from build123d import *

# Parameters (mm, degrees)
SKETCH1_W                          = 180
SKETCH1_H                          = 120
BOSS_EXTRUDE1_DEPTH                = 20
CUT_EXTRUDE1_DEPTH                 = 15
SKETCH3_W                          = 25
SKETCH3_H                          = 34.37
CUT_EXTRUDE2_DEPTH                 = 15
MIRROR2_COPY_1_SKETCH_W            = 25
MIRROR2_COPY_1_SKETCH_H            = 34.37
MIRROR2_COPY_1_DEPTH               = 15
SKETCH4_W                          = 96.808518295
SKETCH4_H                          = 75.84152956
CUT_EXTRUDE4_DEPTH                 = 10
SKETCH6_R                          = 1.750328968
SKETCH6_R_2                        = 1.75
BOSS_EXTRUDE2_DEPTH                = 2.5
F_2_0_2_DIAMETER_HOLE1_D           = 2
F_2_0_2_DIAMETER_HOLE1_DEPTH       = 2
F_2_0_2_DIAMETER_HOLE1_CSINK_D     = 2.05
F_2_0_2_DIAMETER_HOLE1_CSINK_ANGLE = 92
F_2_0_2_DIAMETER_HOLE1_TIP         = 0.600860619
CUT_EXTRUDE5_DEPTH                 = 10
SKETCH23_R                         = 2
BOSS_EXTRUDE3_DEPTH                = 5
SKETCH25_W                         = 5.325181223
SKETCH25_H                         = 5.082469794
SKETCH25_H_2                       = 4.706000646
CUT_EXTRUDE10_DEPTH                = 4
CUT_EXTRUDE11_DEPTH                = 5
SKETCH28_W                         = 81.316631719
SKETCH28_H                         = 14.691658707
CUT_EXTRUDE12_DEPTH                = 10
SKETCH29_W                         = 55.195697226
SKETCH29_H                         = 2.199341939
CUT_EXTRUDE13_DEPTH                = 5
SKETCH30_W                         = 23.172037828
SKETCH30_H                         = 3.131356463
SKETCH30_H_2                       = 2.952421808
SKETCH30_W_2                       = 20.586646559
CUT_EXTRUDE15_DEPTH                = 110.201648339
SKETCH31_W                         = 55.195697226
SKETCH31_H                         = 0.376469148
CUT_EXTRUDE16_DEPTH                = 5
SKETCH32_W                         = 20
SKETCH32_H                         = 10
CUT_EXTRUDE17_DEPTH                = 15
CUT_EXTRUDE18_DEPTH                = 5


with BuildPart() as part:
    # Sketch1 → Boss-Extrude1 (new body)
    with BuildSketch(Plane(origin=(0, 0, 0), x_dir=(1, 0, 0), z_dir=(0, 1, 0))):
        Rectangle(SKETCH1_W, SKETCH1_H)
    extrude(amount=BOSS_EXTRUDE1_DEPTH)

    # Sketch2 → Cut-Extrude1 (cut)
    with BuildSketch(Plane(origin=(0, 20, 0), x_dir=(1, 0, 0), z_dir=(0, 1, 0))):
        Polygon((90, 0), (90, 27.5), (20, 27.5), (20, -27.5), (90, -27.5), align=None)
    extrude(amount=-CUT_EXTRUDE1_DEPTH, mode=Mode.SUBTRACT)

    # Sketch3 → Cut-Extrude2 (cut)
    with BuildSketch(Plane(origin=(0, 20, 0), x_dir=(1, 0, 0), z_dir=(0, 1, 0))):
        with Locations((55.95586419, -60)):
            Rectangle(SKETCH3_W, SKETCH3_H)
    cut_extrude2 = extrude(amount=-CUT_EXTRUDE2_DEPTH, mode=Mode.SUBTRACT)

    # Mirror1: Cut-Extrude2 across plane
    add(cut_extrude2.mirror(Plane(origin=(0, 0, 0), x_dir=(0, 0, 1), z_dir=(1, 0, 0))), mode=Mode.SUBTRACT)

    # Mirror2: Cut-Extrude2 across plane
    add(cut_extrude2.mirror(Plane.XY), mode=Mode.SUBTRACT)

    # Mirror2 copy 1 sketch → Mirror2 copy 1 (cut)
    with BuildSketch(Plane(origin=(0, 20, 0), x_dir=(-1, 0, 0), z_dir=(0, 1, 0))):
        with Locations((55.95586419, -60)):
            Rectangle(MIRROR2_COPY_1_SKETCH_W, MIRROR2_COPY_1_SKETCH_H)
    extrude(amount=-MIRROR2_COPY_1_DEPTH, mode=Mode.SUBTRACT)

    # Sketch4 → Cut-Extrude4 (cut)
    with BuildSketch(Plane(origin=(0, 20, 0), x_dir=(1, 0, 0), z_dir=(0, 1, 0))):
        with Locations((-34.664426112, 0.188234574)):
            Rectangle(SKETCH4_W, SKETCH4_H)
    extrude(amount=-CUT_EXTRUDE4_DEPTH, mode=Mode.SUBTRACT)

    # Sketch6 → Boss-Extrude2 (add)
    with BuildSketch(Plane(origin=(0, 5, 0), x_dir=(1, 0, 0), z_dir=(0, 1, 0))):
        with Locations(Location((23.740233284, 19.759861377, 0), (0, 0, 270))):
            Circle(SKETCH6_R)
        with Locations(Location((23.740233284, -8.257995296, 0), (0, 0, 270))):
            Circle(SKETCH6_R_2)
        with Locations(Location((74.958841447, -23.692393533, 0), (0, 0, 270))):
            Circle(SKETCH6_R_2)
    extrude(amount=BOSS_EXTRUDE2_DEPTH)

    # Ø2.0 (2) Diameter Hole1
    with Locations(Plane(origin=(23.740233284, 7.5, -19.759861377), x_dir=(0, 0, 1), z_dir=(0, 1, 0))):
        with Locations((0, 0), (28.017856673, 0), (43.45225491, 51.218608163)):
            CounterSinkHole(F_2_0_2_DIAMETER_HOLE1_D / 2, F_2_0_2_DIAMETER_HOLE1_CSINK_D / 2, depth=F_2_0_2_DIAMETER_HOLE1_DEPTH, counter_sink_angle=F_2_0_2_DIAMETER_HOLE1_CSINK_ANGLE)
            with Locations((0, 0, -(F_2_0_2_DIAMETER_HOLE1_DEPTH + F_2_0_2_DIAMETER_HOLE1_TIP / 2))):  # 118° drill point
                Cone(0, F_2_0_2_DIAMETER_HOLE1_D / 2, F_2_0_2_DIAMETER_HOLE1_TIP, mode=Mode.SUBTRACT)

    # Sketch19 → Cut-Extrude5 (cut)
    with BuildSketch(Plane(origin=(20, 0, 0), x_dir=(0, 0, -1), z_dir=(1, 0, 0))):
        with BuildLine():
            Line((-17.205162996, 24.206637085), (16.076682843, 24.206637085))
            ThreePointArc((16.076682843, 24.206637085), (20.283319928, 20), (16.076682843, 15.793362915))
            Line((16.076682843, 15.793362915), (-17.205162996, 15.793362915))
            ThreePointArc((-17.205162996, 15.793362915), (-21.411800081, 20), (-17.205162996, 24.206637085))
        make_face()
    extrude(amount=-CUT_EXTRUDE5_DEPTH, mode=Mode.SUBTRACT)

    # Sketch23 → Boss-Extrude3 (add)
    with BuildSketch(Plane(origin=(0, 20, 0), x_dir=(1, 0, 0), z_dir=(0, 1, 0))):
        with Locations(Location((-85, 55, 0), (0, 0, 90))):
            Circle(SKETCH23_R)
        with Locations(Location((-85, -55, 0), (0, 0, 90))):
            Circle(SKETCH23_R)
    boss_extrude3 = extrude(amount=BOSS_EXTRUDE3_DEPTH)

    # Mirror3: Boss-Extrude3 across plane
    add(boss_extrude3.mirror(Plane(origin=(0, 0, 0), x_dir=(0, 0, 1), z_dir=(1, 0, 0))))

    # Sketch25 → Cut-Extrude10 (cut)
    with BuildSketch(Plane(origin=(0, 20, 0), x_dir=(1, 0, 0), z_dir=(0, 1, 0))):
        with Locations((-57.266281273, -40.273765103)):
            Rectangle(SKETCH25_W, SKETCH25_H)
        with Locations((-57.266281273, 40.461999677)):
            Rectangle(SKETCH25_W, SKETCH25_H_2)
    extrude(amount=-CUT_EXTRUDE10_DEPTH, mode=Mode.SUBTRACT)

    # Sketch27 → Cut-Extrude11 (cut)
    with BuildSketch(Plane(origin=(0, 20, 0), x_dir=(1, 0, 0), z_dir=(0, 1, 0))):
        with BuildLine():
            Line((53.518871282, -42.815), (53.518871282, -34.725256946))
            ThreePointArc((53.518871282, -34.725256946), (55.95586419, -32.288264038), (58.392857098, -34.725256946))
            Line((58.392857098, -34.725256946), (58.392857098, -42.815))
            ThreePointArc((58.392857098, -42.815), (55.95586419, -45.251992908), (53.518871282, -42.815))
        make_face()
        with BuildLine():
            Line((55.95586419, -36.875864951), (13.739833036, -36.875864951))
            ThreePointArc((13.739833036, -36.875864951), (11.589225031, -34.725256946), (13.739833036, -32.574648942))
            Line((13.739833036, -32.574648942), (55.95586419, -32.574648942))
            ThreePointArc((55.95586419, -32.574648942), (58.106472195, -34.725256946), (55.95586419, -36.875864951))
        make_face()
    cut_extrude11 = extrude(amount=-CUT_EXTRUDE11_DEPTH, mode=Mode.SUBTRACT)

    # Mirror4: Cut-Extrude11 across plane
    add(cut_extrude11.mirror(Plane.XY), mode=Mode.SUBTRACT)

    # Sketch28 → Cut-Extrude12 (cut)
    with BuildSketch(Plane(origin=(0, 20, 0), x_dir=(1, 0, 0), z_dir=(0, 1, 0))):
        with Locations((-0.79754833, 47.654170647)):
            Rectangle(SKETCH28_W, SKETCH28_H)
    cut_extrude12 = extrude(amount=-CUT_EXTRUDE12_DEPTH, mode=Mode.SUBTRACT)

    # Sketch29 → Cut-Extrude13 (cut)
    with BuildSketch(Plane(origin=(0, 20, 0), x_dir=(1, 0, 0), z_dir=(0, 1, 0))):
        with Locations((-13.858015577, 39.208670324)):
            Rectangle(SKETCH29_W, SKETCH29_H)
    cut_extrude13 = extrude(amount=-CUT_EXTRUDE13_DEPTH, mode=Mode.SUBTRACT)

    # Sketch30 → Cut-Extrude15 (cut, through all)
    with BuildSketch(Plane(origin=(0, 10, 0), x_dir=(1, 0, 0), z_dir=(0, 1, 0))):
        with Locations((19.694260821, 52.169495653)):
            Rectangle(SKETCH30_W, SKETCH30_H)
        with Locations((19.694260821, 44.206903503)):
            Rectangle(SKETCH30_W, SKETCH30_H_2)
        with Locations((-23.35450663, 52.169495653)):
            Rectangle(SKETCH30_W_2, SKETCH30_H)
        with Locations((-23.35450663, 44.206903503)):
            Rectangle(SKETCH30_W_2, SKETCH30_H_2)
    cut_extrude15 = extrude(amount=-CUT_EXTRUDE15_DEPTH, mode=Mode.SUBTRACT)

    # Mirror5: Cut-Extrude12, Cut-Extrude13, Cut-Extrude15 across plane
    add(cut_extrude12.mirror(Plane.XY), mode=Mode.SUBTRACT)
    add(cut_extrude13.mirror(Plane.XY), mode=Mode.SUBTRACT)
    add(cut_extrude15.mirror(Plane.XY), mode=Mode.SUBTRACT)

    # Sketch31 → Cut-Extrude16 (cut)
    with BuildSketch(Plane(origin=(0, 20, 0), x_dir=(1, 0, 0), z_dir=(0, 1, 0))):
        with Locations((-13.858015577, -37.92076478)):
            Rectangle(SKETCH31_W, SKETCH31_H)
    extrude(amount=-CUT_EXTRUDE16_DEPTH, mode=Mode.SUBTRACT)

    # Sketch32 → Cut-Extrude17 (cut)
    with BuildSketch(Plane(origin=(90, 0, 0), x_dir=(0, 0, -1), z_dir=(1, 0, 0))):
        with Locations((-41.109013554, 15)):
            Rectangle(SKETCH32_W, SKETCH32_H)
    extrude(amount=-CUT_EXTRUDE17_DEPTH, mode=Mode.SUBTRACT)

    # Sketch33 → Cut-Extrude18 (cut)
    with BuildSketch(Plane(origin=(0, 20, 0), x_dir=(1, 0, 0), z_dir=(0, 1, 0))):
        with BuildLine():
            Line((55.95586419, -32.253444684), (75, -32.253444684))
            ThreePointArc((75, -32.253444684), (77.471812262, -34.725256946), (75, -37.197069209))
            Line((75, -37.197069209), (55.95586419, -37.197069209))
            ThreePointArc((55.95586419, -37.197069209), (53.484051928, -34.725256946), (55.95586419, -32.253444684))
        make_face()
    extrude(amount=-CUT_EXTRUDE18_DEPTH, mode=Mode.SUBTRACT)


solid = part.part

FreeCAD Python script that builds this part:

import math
import FreeCAD as App
import Part
import Sketcher

doc = App.newDocument("Part")
body = doc.addObject("PartDesign::Body", "Body")

sketch1 = body.newObject("Sketcher::SketchObject", "Sketch")
sketch1.AttachmentSupport = (doc.getObject("XZ_Plane"), [""])
sketch1.MapMode = "FlatFace"
sketch1.addGeometry([
    Part.LineSegment(App.Vector(-90, -60, 0), App.Vector(-90, 60, 0)),
    Part.LineSegment(App.Vector(-90, 60, 0), App.Vector(90, 60, 0)),
    Part.LineSegment(App.Vector(90, 60, 0), App.Vector(90, -60, 0)),
    Part.LineSegment(App.Vector(90, -60, 0), App.Vector(-90, -60, 0)),
], False)
sketch1.addConstraint([
    Sketcher.Constraint("Coincident", 0, 2, 1, 1),
    Sketcher.Constraint("Coincident", 1, 2, 2, 1),
    Sketcher.Constraint("Coincident", 2, 2, 3, 1),
    Sketcher.Constraint("Coincident", 3, 2, 0, 1),
    Sketcher.Constraint("Vertical", 0),
    Sketcher.Constraint("Horizontal", 1),
    Sketcher.Constraint("Vertical", 2),
    Sketcher.Constraint("Horizontal", 3),
    Sketcher.Constraint("Symmetric", 0, 2, 2, 2, -1, 1),
    Sketcher.Constraint("DistanceX", 1, 1, 1, 2, 180.0),
    Sketcher.Constraint("DistanceY", 0, 1, 0, 2, 120.0),
])
pad1 = body.newObject("PartDesign::Pad", "Pad")
pad1.Profile = sketch1
pad1.Length = 20
pad1.Reversed = True

sketch2 = body.newObject("Sketcher::SketchObject", "Sketch001")
sketch2.AttachmentSupport = (doc.getObject("XZ_Plane"), [""])
sketch2.MapMode = "FlatFace"
sketch2.AttachmentOffset = App.Placement(App.Vector(0, 0, -20), App.Rotation())
sketch2.addGeometry([
    Part.LineSegment(App.Vector(90, -27.5, 0), App.Vector(20, -27.5, 0)),
    Part.LineSegment(App.Vector(20, -27.5, 0), App.Vector(20, 27.5, 0)),
    Part.LineSegment(App.Vector(20, 27.5, 0), App.Vector(90, 27.5, 0)),
    Part.LineSegment(App.Vector(90, 27.5, 0), App.Vector(90, -27.5, 0)),
], False)
sketch2.addConstraint([
    Sketcher.Constraint("Coincident", 0, 2, 1, 1),
    Sketcher.Constraint("Coincident", 1, 2, 2, 1),
    Sketcher.Constraint("Coincident", 2, 2, 3, 1),
    Sketcher.Constraint("Coincident", 3, 2, 0, 1),
    Sketcher.Constraint("Horizontal", 0),
    Sketcher.Constraint("Vertical", 1),
    Sketcher.Constraint("Horizontal", 2),
    Sketcher.Constraint("Vertical", 3),
    Sketcher.Constraint("DistanceX", 0, 2, 0, 1, 70.0),
    Sketcher.Constraint("DistanceY", 1, 1, 1, 2, 55.0),
    Sketcher.Constraint("DistanceX", -1, 1, 0, 2, 20.0),
    Sketcher.Constraint("DistanceY", 0, 2, -1, 1, 27.5),
])
pocket1 = body.newObject("PartDesign::Pocket", "Pocket")
pocket1.Profile = sketch2
pocket1.Length = 15
pocket1.Reversed = True

sketch3 = body.newObject("Sketcher::SketchObject", "Sketch002")
sketch3.AttachmentSupport = (doc.getObject("XZ_Plane"), [""])
sketch3.MapMode = "FlatFace"
sketch3.AttachmentOffset = App.Placement(App.Vector(0, 0, -20), App.Rotation())
sketch3.addGeometry([
    Part.LineSegment(App.Vector(43.455864, 42.815, 0), App.Vector(43.455864, 77.185, 0)),
    Part.LineSegment(App.Vector(43.455864, 77.185, 0), App.Vector(68.455864, 77.185, 0)),
    Part.LineSegment(App.Vector(68.455864, 77.185, 0), App.Vector(68.455864, 42.815, 0)),
    Part.LineSegment(App.Vector(68.455864, 42.815, 0), App.Vector(43.455864, 42.815, 0)),
], False)
sketch3.addConstraint([
    Sketcher.Constraint("Coincident", 0, 2, 1, 1),
    Sketcher.Constraint("Coincident", 1, 2, 2, 1),
    Sketcher.Constraint("Coincident", 2, 2, 3, 1),
    Sketcher.Constraint("Coincident", 3, 2, 0, 1),
    Sketcher.Constraint("Vertical", 0),
    Sketcher.Constraint("Horizontal", 1),
    Sketcher.Constraint("Vertical", 2),
    Sketcher.Constraint("Horizontal", 3),
    Sketcher.Constraint("DistanceX", 1, 1, 1, 2, 25.0),
    Sketcher.Constraint("DistanceY", 0, 1, 0, 2, 34.37),
    Sketcher.Constraint("DistanceY", -1, 1, 0, 2, 77.185),
    Sketcher.Constraint("DistanceX", -1, 1, 0, 2, 43.455864),
])
pocket2 = body.newObject("PartDesign::Pocket", "Pocket001")
pocket2.Profile = sketch3
pocket2.Length = 15
pocket2.Reversed = True
doc.recompute()

mirrored = body.newObject("PartDesign::Mirrored", "Mirrored")
mirrored.Originals = [pocket2]
mirrored.MirrorPlane = (doc.getObject("YZ_Plane"), [""])
body.Tip = mirrored
doc.recompute()

mirrored2 = body.newObject("PartDesign::Mirrored", "Mirrored001")
mirrored2.Originals = [pocket2]
mirrored2.MirrorPlane = (doc.getObject("XY_Plane"), [""])
body.Tip = mirrored2

sketch4 = body.newObject("Sketcher::SketchObject", "Sketch003")
sketch4.AttachmentSupport = (doc.getObject("XZ_Plane"), [""])
sketch4.MapMode = "FlatFace"
sketch4.AttachmentOffset = App.Placement(App.Vector(0, 0, -20), App.Rotation())
sketch4.addGeometry([
    Part.LineSegment(App.Vector(-43.455864, -42.815, 0), App.Vector(-43.455864, -77.185, 0)),
    Part.LineSegment(App.Vector(-43.455864, -77.185, 0), App.Vector(-68.455864, -77.185, 0)),
    Part.LineSegment(App.Vector(-68.455864, -77.185, 0), App.Vector(-68.455864, -42.815, 0)),
    Part.LineSegment(App.Vector(-68.455864, -42.815, 0), App.Vector(-43.455864, -42.815, 0)),
], False)
sketch4.addConstraint([
    Sketcher.Constraint("Coincident", 0, 2, 1, 1),
    Sketcher.Constraint("Coincident", 1, 2, 2, 1),
    Sketcher.Constraint("Coincident", 2, 2, 3, 1),
    Sketcher.Constraint("Coincident", 3, 2, 0, 1),
    Sketcher.Constraint("Vertical", 0),
    Sketcher.Constraint("Horizontal", 1),
    Sketcher.Constraint("Vertical", 2),
    Sketcher.Constraint("Horizontal", 3),
    Sketcher.Constraint("DistanceX", 1, 2, 1, 1, 25.0),
    Sketcher.Constraint("DistanceY", 0, 2, 0, 1, 34.37),
    Sketcher.Constraint("DistanceY", 0, 2, -1, 1, 77.185),
    Sketcher.Constraint("DistanceX", 0, 2, -1, 1, 43.455864),
])
pocket3 = body.newObject("PartDesign::Pocket", "Pocket002")
pocket3.Profile = sketch4
pocket3.Length = 15
pocket3.Reversed = True

sketch5 = body.newObject("Sketcher::SketchObject", "Sketch004")
sketch5.AttachmentSupport = (doc.getObject("XZ_Plane"), [""])
sketch5.MapMode = "FlatFace"
sketch5.AttachmentOffset = App.Placement(App.Vector(0, 0, -20), App.Rotation())
sketch5.addGeometry([
    Part.LineSegment(App.Vector(-83.068685, -38.108999, 0), App.Vector(-83.068685, 37.73253, 0)),
    Part.LineSegment(App.Vector(-83.068685, 37.73253, 0), App.Vector(13.739833, 37.73253, 0)),
    Part.LineSegment(App.Vector(13.739833, 37.73253, 0), App.Vector(13.739833, -38.108999, 0)),
    Part.LineSegment(App.Vector(13.739833, -38.108999, 0), App.Vector(-83.068685, -38.108999, 0)),
], False)
sketch5.addConstraint([
    Sketcher.Constraint("Coincident", 0, 2, 1, 1),
    Sketcher.Constraint("Coincident", 1, 2, 2, 1),
    Sketcher.Constraint("Coincident", 2, 2, 3, 1),
    Sketcher.Constraint("Coincident", 3, 2, 0, 1),
    Sketcher.Constraint("Vertical", 0),
    Sketcher.Constraint("Horizontal", 1),
    Sketcher.Constraint("Vertical", 2),
    Sketcher.Constraint("Horizontal", 3),
    Sketcher.Constraint("DistanceY", 2, 2, -1, 1, 38.108999),
    Sketcher.Constraint("DistanceX", 1, 1, 1, 2, 96.808518),
    Sketcher.Constraint("DistanceY", 0, 1, 0, 2, 75.84153),
    Sketcher.Constraint("DistanceX", 0, 2, -1, 1, 83.068685),
])
pocket4 = body.newObject("PartDesign::Pocket", "Pocket003")
pocket4.Profile = sketch5
pocket4.Length = 10
pocket4.Reversed = True

sketch6 = body.newObject("Sketcher::SketchObject", "Sketch005")
sketch6.AttachmentSupport = (doc.getObject("XZ_Plane"), [""])
sketch6.MapMode = "FlatFace"
sketch6.AttachmentOffset = App.Placement(App.Vector(0, 0, -5), App.Rotation())
sketch6.addGeometry([
    Part.Circle(App.Vector(23.740233, -19.759861, 0), App.Vector(0, 0, 1), 1.750329),
    Part.Circle(App.Vector(23.740233, 8.257995, 0), App.Vector(0, 0, 1), 1.75),
    Part.Circle(App.Vector(74.958841, 23.692394, 0), App.Vector(0, 0, 1), 1.75),
], False)
sketch6.addConstraint([
    Sketcher.Constraint("Equal", 1, 2),
    Sketcher.Constraint("Vertical", 0, 3, 1, 3),
    Sketcher.Constraint("Diameter", 1, 3.5),
    Sketcher.Constraint("Diameter", 0, 3.500658),
    Sketcher.Constraint("DistanceY", 1, 3, 2, 3, 15.434398),
    Sketcher.Constraint("DistanceY", 0, 3, -1, 1, 19.759861),
    Sketcher.Constraint("DistanceX", -1, 1, 2, 3, 74.958841),
    Sketcher.Constraint("DistanceX", 1, 3, 2, 3, 51.218608),
    Sketcher.Constraint("DistanceY", -1, 1, 1, 3, 8.257995),
])
pad2 = body.newObject("PartDesign::Pad", "Pad001")
pad2.Profile = sketch6
pad2.Length = 2.5
pad2.Reversed = True

sketch7 = body.newObject("Sketcher::SketchObject", "Sketch006")
sketch7.AttachmentSupport = (doc.getObject("XZ_Plane"), [""])
sketch7.MapMode = "FlatFace"
sketch7.AttachmentOffset = App.Placement(App.Vector(0, 0, -7.5), App.Rotation())
sketch7.addGeometry([
    Part.Circle(App.Vector(23.740233, -19.759861, 0), App.Vector(0, 0, 1), 1),
    Part.Circle(App.Vector(23.740233, 8.257995, 0), App.Vector(0, 0, 1), 1),
    Part.Circle(App.Vector(74.958841, 23.692394, 0), App.Vector(0, 0, 1), 1),
], False)
sketch7.addConstraint([
    Sketcher.Constraint("Equal", 0, 1),
    Sketcher.Constraint("Equal", 1, 2),
    Sketcher.Constraint("Vertical", 0, 3, 1, 3),
    Sketcher.Constraint("Diameter", 0, 2.0),
    Sketcher.Constraint("DistanceY", 1, 3, 2, 3, 15.434398),
    Sketcher.Constraint("DistanceY", 0, 3, -1, 1, 19.759861),
    Sketcher.Constraint("DistanceX", -1, 1, 2, 3, 74.958841),
    Sketcher.Constraint("DistanceX", 1, 3, 2, 3, 51.218608),
    Sketcher.Constraint("DistanceY", -1, 1, 1, 3, 8.257995),
])
doc.recompute()
hole = body.newObject("PartDesign::Hole", "Hole")
hole.Profile = sketch7
hole.ThreadType = "None"
hole.Diameter = 2
hole.DepthType = "Dimension"
hole.Depth = 2
hole.DrillPoint = "Angled"
hole.DrillPointAngle = 118
hole.HoleCutType = "Countersink"
hole.HoleCutDiameter = 2.05
hole.HoleCutCountersinkAngle = 92
hole.Reversed = True

sketch8 = body.newObject("Sketcher::SketchObject", "Sketch007")
sketch8.AttachmentSupport = (doc.getObject("YZ_Plane"), [""])
sketch8.MapMode = "FlatFace"
sketch8.AttachmentOffset = App.Placement(App.Vector(0, 0, 20), App.Rotation())
sketch8.addGeometry([
    Part.LineSegment(App.Vector(24.206637, -16.076683, 0), App.Vector(24.206637, 17.205163, 0)),
    Part.ArcOfCircle(Part.Circle(App.Vector(20, 17.205163, 0), App.Vector(0, 0, 1), 4.206637), math.radians(0), math.radians(180)),
    Part.LineSegment(App.Vector(15.793363, 17.205163, 0), App.Vector(15.793363, -16.076683, 0)),
    Part.ArcOfCircle(Part.Circle(App.Vector(20, -16.076683, 0), App.Vector(0, 0, 1), 4.206637), math.radians(180), math.radians(360)),
], False)
sketch8.addConstraint([
    Sketcher.Constraint("Tangent", 0, 2, 1, 1),
    Sketcher.Constraint("Tangent", 1, 2, 2, 1),
    Sketcher.Constraint("Tangent", 2, 2, 3, 1),
    Sketcher.Constraint("Tangent", 3, 2, 0, 1),
    Sketcher.Constraint("Vertical", 0),
    Sketcher.Constraint("Vertical", 2),
    Sketcher.Constraint("DistanceX", -1, 1, 1, 3, 20.0),
    Sketcher.Constraint("Radius", 1, 4.206637),
    Sketcher.Constraint("DistanceY", 0, 1, 0, 2, 33.281846),
    Sketcher.Constraint("DistanceY", -1, 1, 1, 3, 17.205163),
])
pocket5 = body.newObject("PartDesign::Pocket", "Pocket004")
pocket5.Profile = sketch8
pocket5.Length = 10

sketch9 = body.newObject("Sketcher::SketchObject", "Sketch008")
sketch9.AttachmentSupport = (doc.getObject("XZ_Plane"), [""])
sketch9.MapMode = "FlatFace"
sketch9.AttachmentOffset = App.Placement(App.Vector(0, 0, -20), App.Rotation())
sketch9.addGeometry([
    Part.Circle(App.Vector(-85, -55, 0), App.Vector(0, 0, 1), 2),
    Part.Circle(App.Vector(-85, 55, 0), App.Vector(0, 0, 1), 2),
], False)
sketch9.addConstraint([
    Sketcher.Constraint("Equal", 0, 1),
    Sketcher.Constraint("Symmetric", 0, 3, 1, 3, -1),
    Sketcher.Constraint("Diameter", 0, 4.0),
    Sketcher.Constraint("DistanceX", 0, 3, -1, 1, 85.0),
    Sketcher.Constraint("DistanceY", 0, 3, -1, 1, 55.0),
])
pad3 = body.newObject("PartDesign::Pad", "Pad002")
pad3.Profile = sketch9
pad3.Length = 5
pad3.Reversed = True
doc.recompute()

mirrored3 = body.newObject("PartDesign::Mirrored", "Mirrored002")
mirrored3.Originals = [pad3]
mirrored3.MirrorPlane = (doc.getObject("YZ_Plane"), [""])
body.Tip = mirrored3

sketch10 = body.newObject("Sketcher::SketchObject", "Sketch009")
sketch10.AttachmentSupport = (doc.getObject("XZ_Plane"), [""])
sketch10.MapMode = "FlatFace"
sketch10.AttachmentOffset = App.Placement(App.Vector(0, 0, -20), App.Rotation())
sketch10.addGeometry([
    Part.LineSegment(App.Vector(-59.928872, 37.73253, 0), App.Vector(-59.928872, 42.815, 0)),
    Part.LineSegment(App.Vector(-59.928872, 42.815, 0), App.Vector(-54.603691, 42.815, 0)),
    Part.LineSegment(App.Vector(-54.603691, 42.815, 0), App.Vector(-54.603691, 37.73253, 0)),
    Part.LineSegment(App.Vector(-54.603691, 37.73253, 0), App.Vector(-59.928872, 37.73253, 0)),
    Part.LineSegment(App.Vector(-59.928872, -42.815, 0), App.Vector(-59.928872, -38.108999, 0)),
    Part.LineSegment(App.Vector(-59.928872, -38.108999, 0), App.Vector(-54.603691, -38.108999, 0)),
    Part.LineSegment(App.Vector(-54.603691, -38.108999, 0), App.Vector(-54.603691, -42.815, 0)),
    Part.LineSegment(App.Vector(-54.603691, -42.815, 0), App.Vector(-59.928872, -42.815, 0)),
], False)
sketch10.addConstraint([
    Sketcher.Constraint("Coincident", 0, 2, 1, 1),
    Sketcher.Constraint("Coincident", 1, 2, 2, 1),
    Sketcher.Constraint("Coincident", 2, 2, 3, 1),
    Sketcher.Constraint("Coincident", 3, 2, 0, 1),
    Sketcher.Constraint("Coincident", 4, 2, 5, 1),
    Sketcher.Constraint("Coincident", 5, 2, 6, 1),
    Sketcher.Constraint("Coincident", 6, 2, 7, 1),
    Sketcher.Constraint("Coincident", 7, 2, 4, 1),
    Sketcher.Constraint("Vertical", 0),
    Sketcher.Constraint("Horizontal", 1),
    Sketcher.Constraint("Vertical", 2),
    Sketcher.Constraint("Horizontal", 3),
    Sketcher.Constraint("Vertical", 4),
    Sketcher.Constraint("Horizontal", 5),
    Sketcher.Constraint("Vertical", 6),
    Sketcher.Constraint("Horizontal", 7),
    Sketcher.Constraint("Symmetric", 1, 2, 6, 2, -1),
    Sketcher.Constraint("Vertical", 3, 2, 4, 2),
    Sketcher.Constraint("DistanceY", 4, 1, 4, 2, 4.706001),
    Sketcher.Constraint("DistanceY", 6, 2, 1, 2, 85.63),
    Sketcher.Constraint("DistanceX", 1, 1, 1, 2, 5.325181),
    Sketcher.Constraint("DistanceY", 0, 1, 0, 2, 5.08247),
    Sketcher.Constraint("DistanceX", 0, 2, -1, 1, 59.928872),
])
pocket6 = body.newObject("PartDesign::Pocket", "Pocket005")
pocket6.Profile = sketch10
pocket6.Length = 4
pocket6.Reversed = True

sketch11 = body.newObject("Sketcher::SketchObject", "Sketch010")
sketch11.AttachmentSupport = (doc.getObject("XZ_Plane"), [""])
sketch11.MapMode = "FlatFace"
sketch11.AttachmentOffset = App.Placement(App.Vector(0, 0, -20), App.Rotation())
sketch11.addGeometry([
    Part.ArcOfCircle(Part.Circle(App.Vector(55.955864, 42.815, 0), App.Vector(0, 0, 1), 2.436993), math.radians(0), math.radians(180)),
    Part.LineSegment(App.Vector(58.392857, 42.815, 0), App.Vector(58.392857, 34.725257, 0)),
    Part.ArcOfCircle(Part.Circle(App.Vector(55.955864, 34.725257, 0), App.Vector(0, 0, 1), 2.436993), math.radians(-118.056488), math.radians(0)),
    Part.LineSegment(App.Vector(54.809644, 32.574649, 0), App.Vector(13.739833, 32.574649, 0)),
    Part.ArcOfCircle(Part.Circle(App.Vector(13.739833, 34.725257, 0), App.Vector(0, 0, 1), 2.150608), math.radians(90), math.radians(270)),
    Part.LineSegment(App.Vector(13.739833, 36.875865, 0), App.Vector(53.518871, 36.875865, 0)),
    Part.LineSegment(App.Vector(53.518871, 36.875865, 0), App.Vector(53.518871, 42.815, 0)),
], False)
sketch11.addConstraint([
    Sketcher.Constraint("Tangent", 0, 1, 1, 1),
    Sketcher.Constraint("Tangent", 1, 2, 2, 2),
    Sketcher.Constraint("Coincident", 2, 1, 3, 1),
    Sketcher.Constraint("Tangent", 3, 2, 4, 2),
    Sketcher.Constraint("Tangent", 4, 1, 5, 1),
    Sketcher.Constraint("Coincident", 5, 2, 6, 1),
    Sketcher.Constraint("Tangent", 6, 2, 0, 2),
    Sketcher.Constraint("Vertical", 1),
    Sketcher.Constraint("Horizontal", 3),
    Sketcher.Constraint("Horizontal", 5),
    Sketcher.Constraint("Vertical", 6),
    Sketcher.Constraint("Equal", 0, 2),
    Sketcher.Constraint("Horizontal", 2, 3, 4, 3),
    Sketcher.Constraint("Radius", 4, 2.150608),
    Sketcher.Constraint("DistanceY", -1, 1, 0, 3, 42.815),
    Sketcher.Constraint("Radius", 0, 2.436993),
    Sketcher.Constraint("DistanceX", 3, 2, 3, 1, 41.069811),
    Sketcher.Constraint("DistanceY", 1, 2, 1, 1, 8.089743),
    Sketcher.Constraint("DistanceX", -1, 1, 5, 2, 53.518871),
])
pocket7 = body.newObject("PartDesign::Pocket", "Pocket006")
pocket7.Profile = sketch11
pocket7.Length = 5
pocket7.Reversed = True
doc.recompute()

mirrored4 = body.newObject("PartDesign::Mirrored", "Mirrored003")
mirrored4.Originals = [pocket7]
mirrored4.MirrorPlane = (doc.getObject("XY_Plane"), [""])
body.Tip = mirrored4

sketch12 = body.newObject("Sketcher::SketchObject", "Sketch011")
sketch12.AttachmentSupport = (doc.getObject("XZ_Plane"), [""])
sketch12.MapMode = "FlatFace"
sketch12.AttachmentOffset = App.Placement(App.Vector(0, 0, -20), App.Rotation())
sketch12.addGeometry([
    Part.LineSegment(App.Vector(-41.455864, -55, 0), App.Vector(-41.455864, -40.308341, 0)),
    Part.LineSegment(App.Vector(-41.455864, -40.308341, 0), App.Vector(39.860768, -40.308341, 0)),
    Part.LineSegment(App.Vector(39.860768, -40.308341, 0), App.Vector(39.860768, -55, 0)),
    Part.LineSegment(App.Vector(39.860768, -55, 0), App.Vector(-41.455864, -55, 0)),
], False)
sketch12.addConstraint([
    Sketcher.Constraint("Coincident", 0, 2, 1, 1),
    Sketcher.Constraint("Coincident", 1, 2, 2, 1),
    Sketcher.Constraint("Coincident", 2, 2, 3, 1),
    Sketcher.Constraint("Coincident", 3, 2, 0, 1),
    Sketcher.Constraint("Vertical", 0),
    Sketcher.Constraint("Horizontal", 1),
    Sketcher.Constraint("Vertical", 2),
    Sketcher.Constraint("Horizontal", 3),
    Sketcher.Constraint("DistanceY", 2, 2, -1, 1, 55.0),
    Sketcher.Constraint("DistanceX", 1, 1, 1, 2, 81.316632),
    Sketcher.Constraint("DistanceY", 0, 1, 0, 2, 14.691659),
    Sketcher.Constraint("DistanceX", 0, 2, -1, 1, 41.455864),
])
pocket8 = body.newObject("PartDesign::Pocket", "Pocket007")
pocket8.Profile = sketch12
pocket8.Length = 10
pocket8.Reversed = True

sketch13 = body.newObject("Sketcher::SketchObject", "Sketch012")
sketch13.AttachmentSupport = (doc.getObject("XZ_Plane"), [""])
sketch13.MapMode = "FlatFace"
sketch13.AttachmentOffset = App.Placement(App.Vector(0, 0, -20), App.Rotation())
sketch13.addGeometry([
    Part.LineSegment(App.Vector(-41.455864, -40.308341, 0), App.Vector(-41.455864, -38.108999, 0)),
    Part.LineSegment(App.Vector(-41.455864, -38.108999, 0), App.Vector(13.739833, -38.108999, 0)),
    Part.LineSegment(App.Vector(13.739833, -38.108999, 0), App.Vector(13.739833, -40.308341, 0)),
    Part.LineSegment(App.Vector(13.739833, -40.308341, 0), App.Vector(-41.455864, -40.308341, 0)),
], False)
sketch13.addConstraint([
    Sketcher.Constraint("Coincident", 0, 2, 1, 1),
    Sketcher.Constraint("Coincident", 1, 2, 2, 1),
    Sketcher.Constraint("Coincident", 2, 2, 3, 1),
    Sketcher.Constraint("Coincident", 3, 2, 0, 1),
    Sketcher.Constraint("Vertical", 0),
    Sketcher.Constraint("Horizontal", 1),
    Sketcher.Constraint("Vertical", 2),
    Sketcher.Constraint("Horizontal", 3),
    Sketcher.Constraint("DistanceY", 0, 2, -1, 1, 38.108999),
    Sketcher.Constraint("DistanceY", 0, 1, 0, 2, 2.199342),
    Sketcher.Constraint("DistanceX", 1, 1, 1, 2, 55.195697),
    Sketcher.Constraint("DistanceX", 0, 2, -1, 1, 41.455864),
])
pocket9 = body.newObject("PartDesign::Pocket", "Pocket008")
pocket9.Profile = sketch13
pocket9.Length = 5
pocket9.Reversed = True

sketch14 = body.newObject("Sketcher::SketchObject", "Sketch013")
sketch14.AttachmentSupport = (doc.getObject("XZ_Plane"), [""])
sketch14.MapMode = "FlatFace"
sketch14.AttachmentOffset = App.Placement(App.Vector(0, 0, -10), App.Rotation())
sketch14.addGeometry([
    Part.LineSegment(App.Vector(8.108242, -53.735174, 0), App.Vector(8.108242, -50.603817, 0)),
    Part.LineSegment(App.Vector(8.108242, -50.603817, 0), App.Vector(31.28028, -50.603817, 0)),
    Part.LineSegment(App.Vector(31.28028, -50.603817, 0), App.Vector(31.28028, -53.735174, 0)),
    Part.LineSegment(App.Vector(31.28028, -53.735174, 0), App.Vector(8.108242, -53.735174, 0)),
    Part.LineSegment(App.Vector(8.108242, -45.683114, 0), App.Vector(8.108242, -42.730693, 0)),
    Part.LineSegment(App.Vector(8.108242, -42.730693, 0), App.Vector(31.28028, -42.730693, 0)),
    Part.LineSegment(App.Vector(31.28028, -42.730693, 0), App.Vector(31.28028, -45.683114, 0)),
    Part.LineSegment(App.Vector(31.28028, -45.683114, 0), App.Vector(8.108242, -45.683114, 0)),
    Part.LineSegment(App.Vector(-33.64783, -53.735174, 0), App.Vector(-33.64783, -50.603817, 0)),
    Part.LineSegment(App.Vector(-33.64783, -50.603817, 0), App.Vector(-13.061183, -50.603817, 0)),
    Part.LineSegment(App.Vector(-13.061183, -50.603817, 0), App.Vector(-13.061183, -53.735174, 0)),
    Part.LineSegment(App.Vector(-13.061183, -53.735174, 0), App.Vector(-33.64783, -53.735174, 0)),
    Part.LineSegment(App.Vector(-33.64783, -45.683114, 0), App.Vector(-33.64783, -42.730693, 0)),
    Part.LineSegment(App.Vector(-33.64783, -42.730693, 0), App.Vector(-13.061183, -42.730693, 0)),
    Part.LineSegment(App.Vector(-13.061183, -42.730693, 0), App.Vector(-13.061183, -45.683114, 0)),
    Part.LineSegment(App.Vector(-13.061183, -45.683114, 0), App.Vector(-33.64783, -45.683114, 0)),
], False)
sketch14.addConstraint([
    Sketcher.Constraint("Coincident", 0, 2, 1, 1),
    Sketcher.Constraint("Coincident", 1, 2, 2, 1),
    Sketcher.Constraint("Coincident", 2, 2, 3, 1),
    Sketcher.Constraint("Coincident", 3, 2, 0, 1),
    Sketcher.Constraint("Coincident", 4, 2, 5, 1),
    Sketcher.Constraint("Coincident", 5, 2, 6, 1),
    Sketcher.Constraint("Coincident", 6, 2, 7, 1),
    Sketcher.Constraint("Coincident", 7, 2, 4, 1),
    Sketcher.Constraint("Coincident", 8, 2, 9, 1),
    Sketcher.Constraint("Coincident", 9, 2, 10, 1),
    Sketcher.Constraint("Coincident", 10, 2, 11, 1),
    Sketcher.Constraint("Coincident", 11, 2, 8, 1),
    Sketcher.Constraint("Coincident", 12, 2, 13, 1),
    Sketcher.Constraint("Coincident", 13, 2, 14, 1),
    Sketcher.Constraint("Coincident", 14, 2, 15, 1),
    Sketcher.Constraint("Coincident", 15, 2, 12, 1),
    Sketcher.Constraint("Vertical", 0),
    Sketcher.Constraint("Horizontal", 1),
    Sketcher.Constraint("Vertical", 2),
    Sketcher.Constraint("Horizontal", 3),
    Sketcher.Constraint("Vertical", 4),
    Sketcher.Constraint("Horizontal", 5),
    Sketcher.Constraint("Vertical", 6),
    Sketcher.Constraint("Horizontal", 7),
    Sketcher.Constraint("Vertical", 8),
    Sketcher.Constraint("Horizontal", 9),
    Sketcher.Constraint("Vertical", 10),
    Sketcher.Constraint("Horizontal", 11),
    Sketcher.Constraint("Vertical", 12),
    Sketcher.Constraint("Horizontal", 13),
    Sketcher.Constraint("Vertical", 14),
    Sketcher.Constraint("Horizontal", 15),
    Sketcher.Constraint("Horizontal", 1, 2, 8, 2),
    Sketcher.Constraint("Horizontal", 3, 2, 10, 2),
    Sketcher.Constraint("Horizontal", 5, 2, 12, 2),
    Sketcher.Constraint("Horizontal", 7, 2, 14, 2),
    Sketcher.Constraint("Vertical", 3, 2, 4, 2),
    Sketcher.Constraint("Vertical", 2, 2, 5, 2),
    Sketcher.Constraint("Vertical", 11, 2, 12, 2),
    Sketcher.Constraint("Vertical", 10, 2, 13, 2),
    Sketcher.Constraint("DistanceY", 4, 1, 4, 2, 2.952422),
    Sketcher.Constraint("DistanceX", 1, 1, 1, 2, 23.172038),
    Sketcher.Constraint("DistanceX", 9, 1, 9, 2, 20.586647),
    Sketcher.Constraint("DistanceY", 0, 1, 0, 2, 3.131356),
    Sketcher.Constraint("DistanceX", -1, 1, 0, 2, 8.108242),
    Sketcher.Constraint("DistanceX", 8, 2, -1, 1, 33.64783),
    Sketcher.Constraint("DistanceY", 3, 2, 4, 2, 11.004481),
    Sketcher.Constraint("DistanceY", 0, 2, -1, 1, 50.603817),
])
pocket10 = body.newObject("PartDesign::Pocket", "Pocket009")
pocket10.Profile = sketch14
pocket10.Type = "ThroughAll"
pocket10.Reversed = True
doc.recompute()

mirrored5 = body.newObject("PartDesign::Mirrored", "Mirrored004")
mirrored5.Originals = [pocket8, pocket9, pocket10]
mirrored5.MirrorPlane = (doc.getObject("XY_Plane"), [""])
body.Tip = mirrored5

sketch15 = body.newObject("Sketcher::SketchObject", "Sketch014")
sketch15.AttachmentSupport = (doc.getObject("XZ_Plane"), [""])
sketch15.MapMode = "FlatFace"
sketch15.AttachmentOffset = App.Placement(App.Vector(0, 0, -20), App.Rotation())
sketch15.addGeometry([
    Part.LineSegment(App.Vector(-41.455864, 37.73253, 0), App.Vector(-41.455864, 38.108999, 0)),
    Part.LineSegment(App.Vector(-41.455864, 38.108999, 0), App.Vector(13.739833, 38.108999, 0)),
    Part.LineSegment(App.Vector(13.739833, 38.108999, 0), App.Vector(13.739833, 37.73253, 0)),
    Part.LineSegment(App.Vector(13.739833, 37.73253, 0), App.Vector(-41.455864, 37.73253, 0)),
], False)
sketch15.addConstraint([
    Sketcher.Constraint("Coincident", 0, 2, 1, 1),
    Sketcher.Constraint("Coincident", 1, 2, 2, 1),
    Sketcher.Constraint("Coincident", 2, 2, 3, 1),
    Sketcher.Constraint("Coincident", 3, 2, 0, 1),
    Sketcher.Constraint("Vertical", 0),
    Sketcher.Constraint("Horizontal", 1),
    Sketcher.Constraint("Vertical", 2),
    Sketcher.Constraint("Horizontal", 3),
    Sketcher.Constraint("DistanceY", -1, 1, 0, 2, 38.108999),
    Sketcher.Constraint("DistanceY", 0, 1, 0, 2, 0.376469),
    Sketcher.Constraint("DistanceX", 1, 1, 1, 2, 55.195697),
    Sketcher.Constraint("DistanceX", 0, 2, -1, 1, 41.455864),
])
pocket11 = body.newObject("PartDesign::Pocket", "Pocket010")
pocket11.Profile = sketch15
pocket11.Length = 5
pocket11.Reversed = True

sketch16 = body.newObject("Sketcher::SketchObject", "Sketch015")
sketch16.AttachmentSupport = (doc.getObject("YZ_Plane"), [""])
sketch16.MapMode = "FlatFace"
sketch16.AttachmentOffset = App.Placement(App.Vector(0, 0, 90), App.Rotation())
sketch16.addGeometry([
    Part.LineSegment(App.Vector(20, 51.109014, 0), App.Vector(10, 51.109014, 0)),
    Part.LineSegment(App.Vector(10, 51.109014, 0), App.Vector(10, 31.109014, 0)),
    Part.LineSegment(App.Vector(10, 31.109014, 0), App.Vector(20, 31.109014, 0)),
    Part.LineSegment(App.Vector(20, 31.109014, 0), App.Vector(20, 51.109014, 0)),
], False)
sketch16.addConstraint([
    Sketcher.Constraint("Coincident", 0, 2, 1, 1),
    Sketcher.Constraint("Coincident", 1, 2, 2, 1),
    Sketcher.Constraint("Coincident", 2, 2, 3, 1),
    Sketcher.Constraint("Coincident", 3, 2, 0, 1),
    Sketcher.Constraint("Horizontal", 0),
    Sketcher.Constraint("Vertical", 1),
    Sketcher.Constraint("Horizontal", 2),
    Sketcher.Constraint("Vertical", 3),
    Sketcher.Constraint("DistanceX", 0, 2, 0, 1, 10.0),
    Sketcher.Constraint("DistanceY", 1, 2, 1, 1, 20.0),
    Sketcher.Constraint("DistanceX", -1, 1, 0, 2, 10.0),
    Sketcher.Constraint("DistanceY", -1, 1, 0, 2, 51.109014),
])
pocket12 = body.newObject("PartDesign::Pocket", "Pocket011")
pocket12.Profile = sketch16
pocket12.Length = 15

sketch17 = body.newObject("Sketcher::SketchObject", "Sketch016")
sketch17.AttachmentSupport = (doc.getObject("XZ_Plane"), [""])
sketch17.MapMode = "FlatFace"
sketch17.AttachmentOffset = App.Placement(App.Vector(0, 0, -20), App.Rotation())
sketch17.addGeometry([
    Part.LineSegment(App.Vector(75, 32.253445, 0), App.Vector(55.955864, 32.253445, 0)),
    Part.ArcOfCircle(Part.Circle(App.Vector(55.955864, 34.725257, 0), App.Vector(0, 0, 1), 2.471812), math.radians(90), math.radians(270)),
    Part.LineSegment(App.Vector(55.955864, 37.197069, 0), App.Vector(75, 37.197069, 0)),
    Part.ArcOfCircle(Part.Circle(App.Vector(75, 34.725257, 0), App.Vector(0, 0, 1), 2.471812), math.radians(-90), math.radians(90)),
], False)
sketch17.addConstraint([
    Sketcher.Constraint("Tangent", 0, 2, 1, 2),
    Sketcher.Constraint("Tangent", 1, 1, 2, 1),
    Sketcher.Constraint("Tangent", 2, 2, 3, 2),
    Sketcher.Constraint("Tangent", 3, 1, 0, 1),
    Sketcher.Constraint("Horizontal", 0),
    Sketcher.Constraint("Horizontal", 2),
    Sketcher.Constraint("DistanceX", -1, 1, 3, 3, 75.0),
    Sketcher.Constraint("Radius", 1, 2.471812),
    Sketcher.Constraint("DistanceX", 0, 2, 0, 1, 19.044136),
    Sketcher.Constraint("DistanceY", -1, 1, 1, 1, 37.197069),
])
pocket13 = body.newObject("PartDesign::Pocket", "Pocket012")
pocket13.Profile = sketch17
pocket13.Length = 5
pocket13.Reversed = True

doc.recompute()
